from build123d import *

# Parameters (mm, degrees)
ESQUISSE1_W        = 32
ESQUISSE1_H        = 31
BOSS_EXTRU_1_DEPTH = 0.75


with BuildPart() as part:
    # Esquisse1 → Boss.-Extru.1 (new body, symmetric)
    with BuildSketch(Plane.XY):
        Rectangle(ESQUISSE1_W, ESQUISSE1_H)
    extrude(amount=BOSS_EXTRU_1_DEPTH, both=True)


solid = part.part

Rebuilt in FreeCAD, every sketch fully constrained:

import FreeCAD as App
import Part
import Sketcher
Q = App.Units.Quantity


def add_polygon(sketch, points):
    """Adds a closed chain of lines whose ends are joined by coincident constraints."""
    first, n = sketch.GeometryCount, len(points)
    for a, b in zip(points, points[1:] + points[:1]):
        sketch.addGeometry(Part.LineSegment(App.Vector(*a, 0), App.Vector(*b, 0)), False)
    for i in range(n):
        sketch.addConstraint(Sketcher.Constraint("Coincident", first + i, 2, first + (i + 1) % n, 1))

doc = App.newDocument("Part")
body = doc.addObject("PartDesign::Body", "Body")

sketch1 = body.newObject("Sketcher::SketchObject", "Sketch")
sketch1.AttachmentSupport = (doc.getObject("XY_Plane"), [""])
sketch1.MapMode = "FlatFace"
add_polygon(sketch1, [(-16, 16), (-16, -16), (16, -16), (16, 16)])
sketch1.addConstraint(Sketcher.Constraint("Vertical", 0))
sketch1.addConstraint(Sketcher.Constraint("Horizontal", 1))
sketch1.addConstraint(Sketcher.Constraint("Vertical", 2))
sketch1.addConstraint(Sketcher.Constraint("Horizontal", 3))
sketch1.addConstraint(Sketcher.Constraint("Symmetric", 0, 2, 2, 2, -1, 1))
sketch1.addConstraint(Sketcher.Constraint("DistanceX", 1, 1, 1, 2, Q("32 mm")))
sketch1.addConstraint(Sketcher.Constraint("DistanceY", 0, 2, 0, 1, Q("31 mm")))
pad1 = body.newObject("PartDesign::Pad", "Pad")
pad1.Profile = sketch1
pad1.Length = 1.5
pad1.Midplane = True

doc.recompute()
